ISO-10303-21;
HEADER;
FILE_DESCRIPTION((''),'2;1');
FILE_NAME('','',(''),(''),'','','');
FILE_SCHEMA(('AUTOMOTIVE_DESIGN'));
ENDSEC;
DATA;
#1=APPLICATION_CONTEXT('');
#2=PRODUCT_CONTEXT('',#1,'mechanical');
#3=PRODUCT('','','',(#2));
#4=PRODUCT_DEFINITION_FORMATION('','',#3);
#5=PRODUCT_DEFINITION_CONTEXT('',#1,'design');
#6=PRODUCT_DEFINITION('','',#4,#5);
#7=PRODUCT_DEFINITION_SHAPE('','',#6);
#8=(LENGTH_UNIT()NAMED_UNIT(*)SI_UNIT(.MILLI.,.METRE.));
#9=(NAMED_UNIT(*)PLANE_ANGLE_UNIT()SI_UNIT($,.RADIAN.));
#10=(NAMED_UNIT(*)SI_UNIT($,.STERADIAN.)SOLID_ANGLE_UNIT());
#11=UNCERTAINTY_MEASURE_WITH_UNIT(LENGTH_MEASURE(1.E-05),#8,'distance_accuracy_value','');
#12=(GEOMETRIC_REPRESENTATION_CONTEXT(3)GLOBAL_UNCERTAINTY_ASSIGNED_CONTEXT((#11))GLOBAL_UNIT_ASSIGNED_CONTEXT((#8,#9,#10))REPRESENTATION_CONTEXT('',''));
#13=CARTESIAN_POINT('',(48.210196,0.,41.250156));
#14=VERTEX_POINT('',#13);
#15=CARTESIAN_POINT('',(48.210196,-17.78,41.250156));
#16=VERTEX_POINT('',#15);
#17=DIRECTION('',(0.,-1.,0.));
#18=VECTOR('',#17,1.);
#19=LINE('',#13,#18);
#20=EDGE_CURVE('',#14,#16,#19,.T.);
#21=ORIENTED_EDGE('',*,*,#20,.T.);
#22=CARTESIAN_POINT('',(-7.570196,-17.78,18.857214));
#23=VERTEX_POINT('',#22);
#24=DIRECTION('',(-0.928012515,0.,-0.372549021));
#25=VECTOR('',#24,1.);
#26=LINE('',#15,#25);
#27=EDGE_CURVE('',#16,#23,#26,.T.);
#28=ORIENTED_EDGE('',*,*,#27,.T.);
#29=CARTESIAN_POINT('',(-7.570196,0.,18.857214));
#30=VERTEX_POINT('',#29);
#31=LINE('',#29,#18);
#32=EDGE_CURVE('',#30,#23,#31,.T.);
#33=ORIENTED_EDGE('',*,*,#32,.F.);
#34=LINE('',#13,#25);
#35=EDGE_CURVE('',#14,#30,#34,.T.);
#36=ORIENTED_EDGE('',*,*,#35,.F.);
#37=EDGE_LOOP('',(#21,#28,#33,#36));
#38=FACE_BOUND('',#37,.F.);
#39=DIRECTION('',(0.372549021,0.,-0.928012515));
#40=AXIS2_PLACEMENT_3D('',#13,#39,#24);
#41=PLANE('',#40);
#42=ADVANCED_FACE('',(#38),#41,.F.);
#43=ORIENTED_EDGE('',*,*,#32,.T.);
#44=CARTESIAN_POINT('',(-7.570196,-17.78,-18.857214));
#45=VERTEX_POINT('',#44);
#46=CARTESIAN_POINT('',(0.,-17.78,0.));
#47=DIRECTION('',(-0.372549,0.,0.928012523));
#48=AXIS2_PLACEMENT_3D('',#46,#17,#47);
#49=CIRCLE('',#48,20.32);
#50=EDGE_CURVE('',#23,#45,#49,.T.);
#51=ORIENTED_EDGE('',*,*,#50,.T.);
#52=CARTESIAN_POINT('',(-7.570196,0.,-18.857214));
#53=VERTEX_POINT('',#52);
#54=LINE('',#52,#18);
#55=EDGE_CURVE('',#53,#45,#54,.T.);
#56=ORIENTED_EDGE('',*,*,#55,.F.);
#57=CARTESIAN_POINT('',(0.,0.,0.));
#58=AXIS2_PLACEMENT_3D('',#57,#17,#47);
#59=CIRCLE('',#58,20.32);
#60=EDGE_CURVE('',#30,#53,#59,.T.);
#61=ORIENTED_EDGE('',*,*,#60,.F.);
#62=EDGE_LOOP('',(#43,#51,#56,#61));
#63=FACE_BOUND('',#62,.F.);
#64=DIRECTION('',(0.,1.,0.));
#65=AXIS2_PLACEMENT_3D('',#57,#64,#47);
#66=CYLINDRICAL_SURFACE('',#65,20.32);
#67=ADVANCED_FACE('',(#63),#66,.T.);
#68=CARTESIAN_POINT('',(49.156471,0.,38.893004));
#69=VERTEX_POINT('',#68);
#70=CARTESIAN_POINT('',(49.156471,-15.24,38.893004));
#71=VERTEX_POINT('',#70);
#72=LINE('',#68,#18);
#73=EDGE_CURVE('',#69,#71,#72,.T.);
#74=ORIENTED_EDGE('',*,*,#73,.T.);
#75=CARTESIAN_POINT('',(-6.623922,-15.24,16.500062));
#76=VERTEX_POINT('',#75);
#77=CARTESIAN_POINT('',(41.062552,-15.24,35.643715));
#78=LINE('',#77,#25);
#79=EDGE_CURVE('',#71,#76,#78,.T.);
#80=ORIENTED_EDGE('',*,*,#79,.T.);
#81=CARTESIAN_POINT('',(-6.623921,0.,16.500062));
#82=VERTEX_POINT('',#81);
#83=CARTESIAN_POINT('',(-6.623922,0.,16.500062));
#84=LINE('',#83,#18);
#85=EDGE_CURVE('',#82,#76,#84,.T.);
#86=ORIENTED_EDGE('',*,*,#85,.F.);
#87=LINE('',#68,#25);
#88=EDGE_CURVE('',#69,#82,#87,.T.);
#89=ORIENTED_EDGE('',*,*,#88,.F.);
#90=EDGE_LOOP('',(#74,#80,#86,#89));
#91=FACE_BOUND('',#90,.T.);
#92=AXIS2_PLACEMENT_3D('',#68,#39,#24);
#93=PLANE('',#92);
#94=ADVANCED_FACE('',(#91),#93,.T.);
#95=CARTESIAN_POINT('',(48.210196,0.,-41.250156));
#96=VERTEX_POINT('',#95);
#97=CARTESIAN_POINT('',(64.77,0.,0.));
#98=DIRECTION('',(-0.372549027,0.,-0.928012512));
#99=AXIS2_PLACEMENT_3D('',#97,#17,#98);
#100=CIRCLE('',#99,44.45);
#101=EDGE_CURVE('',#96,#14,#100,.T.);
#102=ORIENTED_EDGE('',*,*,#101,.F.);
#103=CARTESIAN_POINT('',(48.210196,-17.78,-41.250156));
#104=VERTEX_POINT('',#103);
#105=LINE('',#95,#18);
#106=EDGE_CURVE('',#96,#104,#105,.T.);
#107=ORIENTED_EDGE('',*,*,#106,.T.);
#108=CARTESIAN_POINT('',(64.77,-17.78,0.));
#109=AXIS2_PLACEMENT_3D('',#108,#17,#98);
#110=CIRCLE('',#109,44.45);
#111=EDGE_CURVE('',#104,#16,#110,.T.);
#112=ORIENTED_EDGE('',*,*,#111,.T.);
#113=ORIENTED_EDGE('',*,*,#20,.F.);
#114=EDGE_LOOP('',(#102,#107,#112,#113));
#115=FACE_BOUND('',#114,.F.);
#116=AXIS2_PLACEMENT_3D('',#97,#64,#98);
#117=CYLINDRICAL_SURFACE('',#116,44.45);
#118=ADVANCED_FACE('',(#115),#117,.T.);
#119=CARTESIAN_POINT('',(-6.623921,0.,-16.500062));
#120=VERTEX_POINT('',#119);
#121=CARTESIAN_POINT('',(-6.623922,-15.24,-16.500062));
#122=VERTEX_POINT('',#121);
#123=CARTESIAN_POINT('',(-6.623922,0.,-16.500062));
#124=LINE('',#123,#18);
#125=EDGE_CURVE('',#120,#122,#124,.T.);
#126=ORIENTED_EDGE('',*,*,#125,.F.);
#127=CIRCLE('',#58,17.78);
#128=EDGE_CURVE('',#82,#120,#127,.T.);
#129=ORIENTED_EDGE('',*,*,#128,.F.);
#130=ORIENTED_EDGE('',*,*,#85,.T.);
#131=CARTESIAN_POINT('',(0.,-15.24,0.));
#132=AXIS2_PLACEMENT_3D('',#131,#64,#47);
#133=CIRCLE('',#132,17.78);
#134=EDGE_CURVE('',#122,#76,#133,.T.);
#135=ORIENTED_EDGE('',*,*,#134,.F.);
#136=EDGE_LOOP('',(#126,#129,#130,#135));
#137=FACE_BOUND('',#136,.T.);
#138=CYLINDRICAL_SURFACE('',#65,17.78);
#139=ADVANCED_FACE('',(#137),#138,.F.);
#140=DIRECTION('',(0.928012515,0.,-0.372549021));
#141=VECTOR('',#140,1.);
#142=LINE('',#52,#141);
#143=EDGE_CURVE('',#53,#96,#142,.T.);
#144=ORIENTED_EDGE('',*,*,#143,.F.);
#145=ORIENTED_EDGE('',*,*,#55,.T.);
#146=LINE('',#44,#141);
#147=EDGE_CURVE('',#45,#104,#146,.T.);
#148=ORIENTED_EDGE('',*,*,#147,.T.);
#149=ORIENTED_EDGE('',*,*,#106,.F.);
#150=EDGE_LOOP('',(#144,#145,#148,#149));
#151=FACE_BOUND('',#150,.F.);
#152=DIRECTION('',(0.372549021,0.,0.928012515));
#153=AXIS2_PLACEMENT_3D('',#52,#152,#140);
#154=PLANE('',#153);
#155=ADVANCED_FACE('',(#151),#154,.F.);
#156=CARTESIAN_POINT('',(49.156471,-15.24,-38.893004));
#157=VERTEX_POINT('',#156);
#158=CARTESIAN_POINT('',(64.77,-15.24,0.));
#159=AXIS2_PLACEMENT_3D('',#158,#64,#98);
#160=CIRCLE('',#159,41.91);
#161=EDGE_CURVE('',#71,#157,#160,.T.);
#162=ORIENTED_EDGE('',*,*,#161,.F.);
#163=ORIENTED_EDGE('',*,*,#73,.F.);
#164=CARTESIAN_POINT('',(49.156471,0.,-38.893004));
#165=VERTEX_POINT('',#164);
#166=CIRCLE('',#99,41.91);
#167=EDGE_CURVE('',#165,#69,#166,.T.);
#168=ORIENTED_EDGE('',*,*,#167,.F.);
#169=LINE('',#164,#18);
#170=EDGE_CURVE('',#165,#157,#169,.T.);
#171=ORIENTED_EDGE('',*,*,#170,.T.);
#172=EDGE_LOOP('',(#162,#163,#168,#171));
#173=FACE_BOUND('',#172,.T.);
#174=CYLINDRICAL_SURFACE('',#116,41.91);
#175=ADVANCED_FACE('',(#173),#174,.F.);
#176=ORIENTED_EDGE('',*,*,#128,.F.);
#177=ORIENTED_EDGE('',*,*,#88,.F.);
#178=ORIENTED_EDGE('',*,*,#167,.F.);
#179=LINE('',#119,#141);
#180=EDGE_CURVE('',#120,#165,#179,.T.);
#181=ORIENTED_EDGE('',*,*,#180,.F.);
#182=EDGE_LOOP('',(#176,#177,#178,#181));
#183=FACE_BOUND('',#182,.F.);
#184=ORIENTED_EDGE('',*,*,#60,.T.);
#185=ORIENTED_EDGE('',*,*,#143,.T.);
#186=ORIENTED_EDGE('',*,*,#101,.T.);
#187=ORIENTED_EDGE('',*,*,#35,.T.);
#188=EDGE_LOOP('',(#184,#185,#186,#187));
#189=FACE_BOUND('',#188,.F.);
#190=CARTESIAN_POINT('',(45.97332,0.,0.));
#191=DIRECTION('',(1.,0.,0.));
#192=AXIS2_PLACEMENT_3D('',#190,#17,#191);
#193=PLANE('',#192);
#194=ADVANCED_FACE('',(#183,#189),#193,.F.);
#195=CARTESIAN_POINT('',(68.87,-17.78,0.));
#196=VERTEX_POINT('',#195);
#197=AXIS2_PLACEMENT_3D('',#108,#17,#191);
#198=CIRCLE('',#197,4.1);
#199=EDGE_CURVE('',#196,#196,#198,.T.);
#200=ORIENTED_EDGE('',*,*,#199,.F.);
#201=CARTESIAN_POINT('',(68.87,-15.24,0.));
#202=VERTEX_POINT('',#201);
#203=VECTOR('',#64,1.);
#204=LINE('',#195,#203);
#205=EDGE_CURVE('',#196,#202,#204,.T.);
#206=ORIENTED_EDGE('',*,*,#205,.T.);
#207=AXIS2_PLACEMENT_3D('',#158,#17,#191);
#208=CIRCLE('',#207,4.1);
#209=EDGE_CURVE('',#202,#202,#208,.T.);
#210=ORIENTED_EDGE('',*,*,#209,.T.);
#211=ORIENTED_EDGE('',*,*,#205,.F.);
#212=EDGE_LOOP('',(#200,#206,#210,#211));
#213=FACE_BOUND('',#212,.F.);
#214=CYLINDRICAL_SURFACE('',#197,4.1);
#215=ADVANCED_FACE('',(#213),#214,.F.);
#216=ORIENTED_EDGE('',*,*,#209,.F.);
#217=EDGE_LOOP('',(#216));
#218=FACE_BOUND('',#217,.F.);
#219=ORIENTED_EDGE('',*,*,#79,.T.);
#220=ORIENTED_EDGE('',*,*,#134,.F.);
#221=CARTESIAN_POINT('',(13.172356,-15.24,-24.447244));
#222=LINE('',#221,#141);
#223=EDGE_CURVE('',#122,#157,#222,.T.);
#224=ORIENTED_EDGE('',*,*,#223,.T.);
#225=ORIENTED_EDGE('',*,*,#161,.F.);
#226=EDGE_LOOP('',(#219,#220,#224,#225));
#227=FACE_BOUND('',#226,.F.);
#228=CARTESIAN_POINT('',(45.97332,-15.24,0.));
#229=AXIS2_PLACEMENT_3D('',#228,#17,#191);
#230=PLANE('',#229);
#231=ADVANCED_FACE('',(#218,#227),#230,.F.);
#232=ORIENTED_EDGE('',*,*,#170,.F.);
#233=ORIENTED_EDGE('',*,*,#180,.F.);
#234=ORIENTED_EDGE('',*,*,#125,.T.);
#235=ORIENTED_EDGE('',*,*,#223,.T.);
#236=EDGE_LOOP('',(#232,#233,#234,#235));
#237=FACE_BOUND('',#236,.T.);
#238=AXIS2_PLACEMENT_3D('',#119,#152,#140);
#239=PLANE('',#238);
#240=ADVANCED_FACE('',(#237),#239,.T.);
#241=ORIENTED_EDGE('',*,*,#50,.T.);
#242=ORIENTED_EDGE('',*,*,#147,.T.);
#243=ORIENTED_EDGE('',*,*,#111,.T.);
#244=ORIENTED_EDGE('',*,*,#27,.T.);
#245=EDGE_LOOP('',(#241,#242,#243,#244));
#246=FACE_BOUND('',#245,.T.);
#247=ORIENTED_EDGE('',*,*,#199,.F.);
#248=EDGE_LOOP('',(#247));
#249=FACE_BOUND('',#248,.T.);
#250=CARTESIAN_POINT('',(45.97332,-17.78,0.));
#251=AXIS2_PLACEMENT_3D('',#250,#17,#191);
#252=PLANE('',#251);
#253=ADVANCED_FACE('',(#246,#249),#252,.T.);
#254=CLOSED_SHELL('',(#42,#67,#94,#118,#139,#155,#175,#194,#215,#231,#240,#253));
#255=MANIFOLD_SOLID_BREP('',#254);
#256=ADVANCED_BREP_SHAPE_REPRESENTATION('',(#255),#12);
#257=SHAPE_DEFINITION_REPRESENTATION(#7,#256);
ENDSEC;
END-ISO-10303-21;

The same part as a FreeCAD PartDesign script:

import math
import FreeCAD as App
import Part
import Sketcher

V = App.Vector
Q = App.Units.Quantity


def faces_at(feature, points):
    """Names of the faces that lie closest to the given points."""
    faces = feature.Shape.Faces
    near = lambda p: min(range(len(faces)), key=lambda i: faces[i].distToShape(Part.Vertex(*p))[0])
    return sorted({f"Face{near(p) + 1}" for p in points})

doc = App.newDocument("Part")
body = doc.addObject("PartDesign::Body", "Body")

# Sketch on XZ plane
sketch1 = body.newObject("Sketcher::SketchObject", "Sketch")
sketch1.AttachmentSupport = (doc.getObject("XZ_Plane"), [""])
sketch1.MapMode = "FlatFace"
sketch1.addGeometry(Part.LineSegment(V(48, 41, 0), V(-8, 19, 0)), False)
sketch1.addGeometry(Part.ArcOfCircle(Part.Circle(V(0, 0, 0), V(0, 0, 1), 20), math.radians(112), math.radians(248)), False)
sketch1.addGeometry(Part.LineSegment(V(-8, -19, 0), V(48, -41, 0)), False)
sketch1.addGeometry(Part.ArcOfCircle(Part.Circle(V(65, 0, 0), V(0, 0, 1), 44), math.radians(-112), math.radians(112)), False)
sketch1.addConstraint(Sketcher.Constraint("Tangent", 0, 2, 1, 1))
sketch1.addConstraint(Sketcher.Constraint("Tangent", 1, 2, 2, 1))
sketch1.addConstraint(Sketcher.Constraint("Tangent", 2, 2, 3, 1))
sketch1.addConstraint(Sketcher.Constraint("Tangent", 3, 2, 0, 1))
sketch1.addConstraint(Sketcher.Constraint("Coincident", 1, 3, -1, 1))
sketch1.addConstraint(Sketcher.Constraint("PointOnObject", 3, 3, -1))
sketch1.addConstraint(Sketcher.Constraint("Radius", 1, Q("0.8 in")))
sketch1.addConstraint(Sketcher.Constraint("Radius", 3, Q("1.75 in")))
sketch1.addConstraint(Sketcher.Constraint("DistanceX", -1, 1, 3, 3, Q("2.55 in")))
pad1 = body.newObject("PartDesign::Pad", "Pad")
pad1.Profile = sketch1
pad1.Length = Q("0.7 in")
doc.recompute()

thickness = body.newObject("PartDesign::Thickness", "Thickness")
thickness.Base = (pad1, faces_at(pad1, [(44.45, 0, 0)]))
thickness.Value = Q("0.1 in")
thickness.Reversed = True
thickness.Join = "Arc"

# Sketch on XZ plane
sketch2 = body.newObject("Sketcher::SketchObject", "Sketch001")
sketch2.AttachmentSupport = (doc.getObject("XZ_Plane"), [""])
sketch2.MapMode = "FlatFace"
sketch2.AttachmentOffset = App.Placement(V(0, 0, 0.7 * 25.4), App.Rotation())
sketch2.addGeometry(Part.Circle(V(64.8, 0, 0), V(0, 0, 1), 4.1), False)
sketch2.addConstraint(Sketcher.Constraint("PointOnObject", 0, 3, -1))
sketch2.addConstraint(Sketcher.Constraint("Diameter", 0, 8.2))
sketch2.addConstraint(Sketcher.Constraint("DistanceX", -1, 1, 0, 3, Q("2.55 in")))
pocket1 = body.newObject("PartDesign::Pocket", "Pocket")
pocket1.Profile = sketch2
pocket1.Length = Q("1 in")

doc.recompute()
